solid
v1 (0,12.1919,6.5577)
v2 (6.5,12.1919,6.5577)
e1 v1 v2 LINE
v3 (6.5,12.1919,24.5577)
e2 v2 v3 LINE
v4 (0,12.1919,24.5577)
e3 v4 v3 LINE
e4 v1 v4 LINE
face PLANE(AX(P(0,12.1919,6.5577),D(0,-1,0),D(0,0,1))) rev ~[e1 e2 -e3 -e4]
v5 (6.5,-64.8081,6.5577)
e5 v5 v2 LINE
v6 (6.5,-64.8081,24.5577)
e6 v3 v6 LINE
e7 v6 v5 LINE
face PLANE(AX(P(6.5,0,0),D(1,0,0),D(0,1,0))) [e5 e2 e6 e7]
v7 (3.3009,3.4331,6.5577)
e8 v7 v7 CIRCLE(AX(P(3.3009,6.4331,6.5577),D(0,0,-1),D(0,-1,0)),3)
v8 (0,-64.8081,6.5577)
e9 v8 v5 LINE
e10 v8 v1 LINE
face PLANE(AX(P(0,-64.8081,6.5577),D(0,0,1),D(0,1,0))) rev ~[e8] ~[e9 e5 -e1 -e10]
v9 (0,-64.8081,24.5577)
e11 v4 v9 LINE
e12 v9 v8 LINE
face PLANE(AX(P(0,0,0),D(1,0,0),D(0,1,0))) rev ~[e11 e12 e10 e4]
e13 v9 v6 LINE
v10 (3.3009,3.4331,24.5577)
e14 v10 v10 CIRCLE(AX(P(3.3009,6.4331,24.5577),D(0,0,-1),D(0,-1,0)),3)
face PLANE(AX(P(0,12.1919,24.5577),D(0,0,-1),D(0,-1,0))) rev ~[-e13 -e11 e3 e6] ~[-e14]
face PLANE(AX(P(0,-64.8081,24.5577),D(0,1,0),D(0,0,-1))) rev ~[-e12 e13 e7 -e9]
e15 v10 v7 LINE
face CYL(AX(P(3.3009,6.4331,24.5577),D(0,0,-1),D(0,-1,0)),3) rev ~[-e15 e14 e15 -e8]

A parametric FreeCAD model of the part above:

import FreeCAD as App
import Part
import Sketcher
from FreeCAD import Vector

doc = App.newDocument("Part")
body = doc.addObject("PartDesign::Body", "Body")

sketch1 = body.newObject("Sketcher::SketchObject", "Sketch")
sketch1.AttachmentSupport = (doc.getObject("YZ_Plane"), [""])
sketch1.MapMode = "FlatFace"
sketch1.addGeometry([
    Part.LineSegment(Vector(12, 7, 0), Vector(12, 25, 0)),
    Part.LineSegment(Vector(12, 25, 0), Vector(-65, 25, 0)),
    Part.LineSegment(Vector(-65, 25, 0), Vector(-65, 7, 0)),
    Part.LineSegment(Vector(-65, 7, 0), Vector(12, 7, 0)),
], False)
sketch1.addConstraint([
    Sketcher.Constraint("Coincident", 0, 2, 1, 1),
    Sketcher.Constraint("Coincident", 1, 2, 2, 1),
    Sketcher.Constraint("Coincident", 2, 2, 3, 1),
    Sketcher.Constraint("Coincident", 3, 2, 0, 1),
    Sketcher.Constraint("Vertical", 0),
    Sketcher.Constraint("Horizontal", 1),
    Sketcher.Constraint("Vertical", 2),
    Sketcher.Constraint("Horizontal", 3),
    Sketcher.Constraint("DistanceX", 1, 2, 1, 1, 77.0),
    Sketcher.Constraint("DistanceY", 0, 1, 0, 2, 18.0),
    Sketcher.Constraint("DistanceX", -1, 1, 0, 2, 12.192),
    Sketcher.Constraint("DistanceY", -1, 1, 0, 2, 24.5577),
])
pad1 = body.newObject("PartDesign::Pad", "Pad")
pad1.Profile = sketch1
pad1.Length = 6.5

sketch2 = body.newObject("Sketcher::SketchObject", "Sketch001")
sketch2.AttachmentSupport = (doc.getObject("XY_Plane"), [""])
sketch2.MapMode = "FlatFace"
sketch2.AttachmentOffset = App.Placement(Vector(0, 0, 24.5577), App.Rotation())
sketch2.addGeometry(Part.Circle(Vector(3.3, 6.4, 0), Vector(0, 0, 1), 3), False)
sketch2.addConstraint([
    Sketcher.Constraint("Diameter", 0, 6.0),
    Sketcher.Constraint("DistanceX", -1, 1, 0, 3, 3.301),
    Sketcher.Constraint("DistanceY", -1, 1, 0, 3, 6.433),
])
doc.recompute()
hole = body.newObject("PartDesign::Hole", "Hole")
hole.Profile = sketch2
hole.ThreadType = "None"
hole.Diameter = 6
hole.DepthType = "ThroughAll"

doc.recompute()
